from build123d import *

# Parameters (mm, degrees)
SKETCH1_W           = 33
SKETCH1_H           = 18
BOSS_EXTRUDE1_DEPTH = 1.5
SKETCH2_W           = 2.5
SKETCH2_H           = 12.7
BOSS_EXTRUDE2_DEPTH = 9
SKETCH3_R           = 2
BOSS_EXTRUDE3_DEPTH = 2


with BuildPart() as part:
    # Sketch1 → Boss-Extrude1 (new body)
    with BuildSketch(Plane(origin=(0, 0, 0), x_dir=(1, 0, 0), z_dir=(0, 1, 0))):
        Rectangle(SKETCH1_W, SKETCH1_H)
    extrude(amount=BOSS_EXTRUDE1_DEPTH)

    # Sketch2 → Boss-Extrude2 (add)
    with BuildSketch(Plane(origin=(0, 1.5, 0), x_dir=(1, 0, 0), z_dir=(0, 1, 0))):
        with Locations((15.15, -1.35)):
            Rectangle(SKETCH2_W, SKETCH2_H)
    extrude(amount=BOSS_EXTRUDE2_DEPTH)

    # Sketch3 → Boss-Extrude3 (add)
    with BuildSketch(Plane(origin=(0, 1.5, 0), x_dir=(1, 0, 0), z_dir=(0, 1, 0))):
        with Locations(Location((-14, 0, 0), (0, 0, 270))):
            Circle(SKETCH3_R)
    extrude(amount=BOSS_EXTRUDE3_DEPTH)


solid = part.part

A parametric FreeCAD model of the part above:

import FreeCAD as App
import Part
import Sketcher

V = App.Vector
Q = App.Units.Quantity


def add_polygon(sketch, points):
    """Adds a closed chain of lines whose ends are joined by coincident constraints."""
    first, n = sketch.GeometryCount, len(points)
    for a, b in zip(points, points[1:] + points[:1]):
        sketch.addGeometry(Part.LineSegment(App.Vector(*a, 0), App.Vector(*b, 0)), False)
    for i in range(n):
        sketch.addConstraint(Sketcher.Constraint("Coincident", first + i, 2, first + (i + 1) % n, 1))

doc = App.newDocument("Part")
body = doc.addObject("PartDesign::Body", "Body")

# Sketch on XZ plane
sketch1 = body.newObject("Sketcher::SketchObject", "Sketch")
sketch1.AttachmentSupport = (doc.getObject("XZ_Plane"), [""])
sketch1.MapMode = "FlatFace"
add_polygon(sketch1, [(-16, -9), (-16, 9), (16, 9), (16, -9)])  # lines 0-3
sketch1.addConstraint([
    Sketcher.Constraint("Vertical", 0),
    Sketcher.Constraint("Horizontal", 1),
    Sketcher.Constraint("Vertical", 2),
    Sketcher.Constraint("Horizontal", 3),
    Sketcher.Constraint("Symmetric", 0, 2, 2, 2, -1, 1),
    Sketcher.Constraint("DistanceX", 1, 1, 1, 2, Q("33 mm")),
    Sketcher.Constraint("DistanceY", 0, 1, 0, 2, Q("18 mm")),
])
pad1 = body.newObject("PartDesign::Pad", "Pad")
pad1.Profile = sketch1
pad1.Length = 1.5
pad1.Reversed = True

# Sketch on XZ plane
sketch2 = body.newObject("Sketcher::SketchObject", "Sketch001")
sketch2.AttachmentSupport = (doc.getObject("XZ_Plane"), [""])
sketch2.MapMode = "FlatFace"
sketch2.AttachmentOffset = App.Placement(V(0, 0, -1.5), App.Rotation())
add_polygon(sketch2, [(13.9, -5), (13.9, 7.7), (16.4, 7.7), (16.4, -5)])  # lines 0-3
sketch2.addConstraint([
    Sketcher.Constraint("Vertical", 0),
    Sketcher.Constraint("Horizontal", 1),
    Sketcher.Constraint("Vertical", 2),
    Sketcher.Constraint("Horizontal", 3),
    Sketcher.Constraint("DistanceX", 1, 1, 1, 2, Q("2.5 mm")),
    Sketcher.Constraint("DistanceY", 0, 1, 0, 2, Q("12.7 mm")),
    Sketcher.Constraint("DistanceY", 2, 2, -1, 1, Q("5 mm")),
    Sketcher.Constraint("DistanceX", -1, 1, 0, 2, Q("13.9 mm")),
])
pad2 = body.newObject("PartDesign::Pad", "Pad001")
pad2.Profile = sketch2
pad2.Length = 9
pad2.Reversed = True

# Sketch on XZ plane
sketch3 = body.newObject("Sketcher::SketchObject", "Sketch002")
sketch3.AttachmentSupport = (doc.getObject("XZ_Plane"), [""])
sketch3.MapMode = "FlatFace"
sketch3.AttachmentOffset = App.Placement(V(0, 0, -1.5), App.Rotation())
sketch3.addGeometry(Part.Circle(V(-14, 0, 0), V(0, 0, 1), 2), False)
sketch3.addConstraint([
    Sketcher.Constraint("PointOnObject", 0, 3, -1),
    Sketcher.Constraint("Diameter", 0, Q("4 mm")),
    Sketcher.Constraint("DistanceX", 0, 3, -1, 1, Q("14 mm")),
])
pad3 = body.newObject("PartDesign::Pad", "Pad002")
pad3.Profile = sketch3
pad3.Length = 2
pad3.Reversed = True

doc.recompute()
